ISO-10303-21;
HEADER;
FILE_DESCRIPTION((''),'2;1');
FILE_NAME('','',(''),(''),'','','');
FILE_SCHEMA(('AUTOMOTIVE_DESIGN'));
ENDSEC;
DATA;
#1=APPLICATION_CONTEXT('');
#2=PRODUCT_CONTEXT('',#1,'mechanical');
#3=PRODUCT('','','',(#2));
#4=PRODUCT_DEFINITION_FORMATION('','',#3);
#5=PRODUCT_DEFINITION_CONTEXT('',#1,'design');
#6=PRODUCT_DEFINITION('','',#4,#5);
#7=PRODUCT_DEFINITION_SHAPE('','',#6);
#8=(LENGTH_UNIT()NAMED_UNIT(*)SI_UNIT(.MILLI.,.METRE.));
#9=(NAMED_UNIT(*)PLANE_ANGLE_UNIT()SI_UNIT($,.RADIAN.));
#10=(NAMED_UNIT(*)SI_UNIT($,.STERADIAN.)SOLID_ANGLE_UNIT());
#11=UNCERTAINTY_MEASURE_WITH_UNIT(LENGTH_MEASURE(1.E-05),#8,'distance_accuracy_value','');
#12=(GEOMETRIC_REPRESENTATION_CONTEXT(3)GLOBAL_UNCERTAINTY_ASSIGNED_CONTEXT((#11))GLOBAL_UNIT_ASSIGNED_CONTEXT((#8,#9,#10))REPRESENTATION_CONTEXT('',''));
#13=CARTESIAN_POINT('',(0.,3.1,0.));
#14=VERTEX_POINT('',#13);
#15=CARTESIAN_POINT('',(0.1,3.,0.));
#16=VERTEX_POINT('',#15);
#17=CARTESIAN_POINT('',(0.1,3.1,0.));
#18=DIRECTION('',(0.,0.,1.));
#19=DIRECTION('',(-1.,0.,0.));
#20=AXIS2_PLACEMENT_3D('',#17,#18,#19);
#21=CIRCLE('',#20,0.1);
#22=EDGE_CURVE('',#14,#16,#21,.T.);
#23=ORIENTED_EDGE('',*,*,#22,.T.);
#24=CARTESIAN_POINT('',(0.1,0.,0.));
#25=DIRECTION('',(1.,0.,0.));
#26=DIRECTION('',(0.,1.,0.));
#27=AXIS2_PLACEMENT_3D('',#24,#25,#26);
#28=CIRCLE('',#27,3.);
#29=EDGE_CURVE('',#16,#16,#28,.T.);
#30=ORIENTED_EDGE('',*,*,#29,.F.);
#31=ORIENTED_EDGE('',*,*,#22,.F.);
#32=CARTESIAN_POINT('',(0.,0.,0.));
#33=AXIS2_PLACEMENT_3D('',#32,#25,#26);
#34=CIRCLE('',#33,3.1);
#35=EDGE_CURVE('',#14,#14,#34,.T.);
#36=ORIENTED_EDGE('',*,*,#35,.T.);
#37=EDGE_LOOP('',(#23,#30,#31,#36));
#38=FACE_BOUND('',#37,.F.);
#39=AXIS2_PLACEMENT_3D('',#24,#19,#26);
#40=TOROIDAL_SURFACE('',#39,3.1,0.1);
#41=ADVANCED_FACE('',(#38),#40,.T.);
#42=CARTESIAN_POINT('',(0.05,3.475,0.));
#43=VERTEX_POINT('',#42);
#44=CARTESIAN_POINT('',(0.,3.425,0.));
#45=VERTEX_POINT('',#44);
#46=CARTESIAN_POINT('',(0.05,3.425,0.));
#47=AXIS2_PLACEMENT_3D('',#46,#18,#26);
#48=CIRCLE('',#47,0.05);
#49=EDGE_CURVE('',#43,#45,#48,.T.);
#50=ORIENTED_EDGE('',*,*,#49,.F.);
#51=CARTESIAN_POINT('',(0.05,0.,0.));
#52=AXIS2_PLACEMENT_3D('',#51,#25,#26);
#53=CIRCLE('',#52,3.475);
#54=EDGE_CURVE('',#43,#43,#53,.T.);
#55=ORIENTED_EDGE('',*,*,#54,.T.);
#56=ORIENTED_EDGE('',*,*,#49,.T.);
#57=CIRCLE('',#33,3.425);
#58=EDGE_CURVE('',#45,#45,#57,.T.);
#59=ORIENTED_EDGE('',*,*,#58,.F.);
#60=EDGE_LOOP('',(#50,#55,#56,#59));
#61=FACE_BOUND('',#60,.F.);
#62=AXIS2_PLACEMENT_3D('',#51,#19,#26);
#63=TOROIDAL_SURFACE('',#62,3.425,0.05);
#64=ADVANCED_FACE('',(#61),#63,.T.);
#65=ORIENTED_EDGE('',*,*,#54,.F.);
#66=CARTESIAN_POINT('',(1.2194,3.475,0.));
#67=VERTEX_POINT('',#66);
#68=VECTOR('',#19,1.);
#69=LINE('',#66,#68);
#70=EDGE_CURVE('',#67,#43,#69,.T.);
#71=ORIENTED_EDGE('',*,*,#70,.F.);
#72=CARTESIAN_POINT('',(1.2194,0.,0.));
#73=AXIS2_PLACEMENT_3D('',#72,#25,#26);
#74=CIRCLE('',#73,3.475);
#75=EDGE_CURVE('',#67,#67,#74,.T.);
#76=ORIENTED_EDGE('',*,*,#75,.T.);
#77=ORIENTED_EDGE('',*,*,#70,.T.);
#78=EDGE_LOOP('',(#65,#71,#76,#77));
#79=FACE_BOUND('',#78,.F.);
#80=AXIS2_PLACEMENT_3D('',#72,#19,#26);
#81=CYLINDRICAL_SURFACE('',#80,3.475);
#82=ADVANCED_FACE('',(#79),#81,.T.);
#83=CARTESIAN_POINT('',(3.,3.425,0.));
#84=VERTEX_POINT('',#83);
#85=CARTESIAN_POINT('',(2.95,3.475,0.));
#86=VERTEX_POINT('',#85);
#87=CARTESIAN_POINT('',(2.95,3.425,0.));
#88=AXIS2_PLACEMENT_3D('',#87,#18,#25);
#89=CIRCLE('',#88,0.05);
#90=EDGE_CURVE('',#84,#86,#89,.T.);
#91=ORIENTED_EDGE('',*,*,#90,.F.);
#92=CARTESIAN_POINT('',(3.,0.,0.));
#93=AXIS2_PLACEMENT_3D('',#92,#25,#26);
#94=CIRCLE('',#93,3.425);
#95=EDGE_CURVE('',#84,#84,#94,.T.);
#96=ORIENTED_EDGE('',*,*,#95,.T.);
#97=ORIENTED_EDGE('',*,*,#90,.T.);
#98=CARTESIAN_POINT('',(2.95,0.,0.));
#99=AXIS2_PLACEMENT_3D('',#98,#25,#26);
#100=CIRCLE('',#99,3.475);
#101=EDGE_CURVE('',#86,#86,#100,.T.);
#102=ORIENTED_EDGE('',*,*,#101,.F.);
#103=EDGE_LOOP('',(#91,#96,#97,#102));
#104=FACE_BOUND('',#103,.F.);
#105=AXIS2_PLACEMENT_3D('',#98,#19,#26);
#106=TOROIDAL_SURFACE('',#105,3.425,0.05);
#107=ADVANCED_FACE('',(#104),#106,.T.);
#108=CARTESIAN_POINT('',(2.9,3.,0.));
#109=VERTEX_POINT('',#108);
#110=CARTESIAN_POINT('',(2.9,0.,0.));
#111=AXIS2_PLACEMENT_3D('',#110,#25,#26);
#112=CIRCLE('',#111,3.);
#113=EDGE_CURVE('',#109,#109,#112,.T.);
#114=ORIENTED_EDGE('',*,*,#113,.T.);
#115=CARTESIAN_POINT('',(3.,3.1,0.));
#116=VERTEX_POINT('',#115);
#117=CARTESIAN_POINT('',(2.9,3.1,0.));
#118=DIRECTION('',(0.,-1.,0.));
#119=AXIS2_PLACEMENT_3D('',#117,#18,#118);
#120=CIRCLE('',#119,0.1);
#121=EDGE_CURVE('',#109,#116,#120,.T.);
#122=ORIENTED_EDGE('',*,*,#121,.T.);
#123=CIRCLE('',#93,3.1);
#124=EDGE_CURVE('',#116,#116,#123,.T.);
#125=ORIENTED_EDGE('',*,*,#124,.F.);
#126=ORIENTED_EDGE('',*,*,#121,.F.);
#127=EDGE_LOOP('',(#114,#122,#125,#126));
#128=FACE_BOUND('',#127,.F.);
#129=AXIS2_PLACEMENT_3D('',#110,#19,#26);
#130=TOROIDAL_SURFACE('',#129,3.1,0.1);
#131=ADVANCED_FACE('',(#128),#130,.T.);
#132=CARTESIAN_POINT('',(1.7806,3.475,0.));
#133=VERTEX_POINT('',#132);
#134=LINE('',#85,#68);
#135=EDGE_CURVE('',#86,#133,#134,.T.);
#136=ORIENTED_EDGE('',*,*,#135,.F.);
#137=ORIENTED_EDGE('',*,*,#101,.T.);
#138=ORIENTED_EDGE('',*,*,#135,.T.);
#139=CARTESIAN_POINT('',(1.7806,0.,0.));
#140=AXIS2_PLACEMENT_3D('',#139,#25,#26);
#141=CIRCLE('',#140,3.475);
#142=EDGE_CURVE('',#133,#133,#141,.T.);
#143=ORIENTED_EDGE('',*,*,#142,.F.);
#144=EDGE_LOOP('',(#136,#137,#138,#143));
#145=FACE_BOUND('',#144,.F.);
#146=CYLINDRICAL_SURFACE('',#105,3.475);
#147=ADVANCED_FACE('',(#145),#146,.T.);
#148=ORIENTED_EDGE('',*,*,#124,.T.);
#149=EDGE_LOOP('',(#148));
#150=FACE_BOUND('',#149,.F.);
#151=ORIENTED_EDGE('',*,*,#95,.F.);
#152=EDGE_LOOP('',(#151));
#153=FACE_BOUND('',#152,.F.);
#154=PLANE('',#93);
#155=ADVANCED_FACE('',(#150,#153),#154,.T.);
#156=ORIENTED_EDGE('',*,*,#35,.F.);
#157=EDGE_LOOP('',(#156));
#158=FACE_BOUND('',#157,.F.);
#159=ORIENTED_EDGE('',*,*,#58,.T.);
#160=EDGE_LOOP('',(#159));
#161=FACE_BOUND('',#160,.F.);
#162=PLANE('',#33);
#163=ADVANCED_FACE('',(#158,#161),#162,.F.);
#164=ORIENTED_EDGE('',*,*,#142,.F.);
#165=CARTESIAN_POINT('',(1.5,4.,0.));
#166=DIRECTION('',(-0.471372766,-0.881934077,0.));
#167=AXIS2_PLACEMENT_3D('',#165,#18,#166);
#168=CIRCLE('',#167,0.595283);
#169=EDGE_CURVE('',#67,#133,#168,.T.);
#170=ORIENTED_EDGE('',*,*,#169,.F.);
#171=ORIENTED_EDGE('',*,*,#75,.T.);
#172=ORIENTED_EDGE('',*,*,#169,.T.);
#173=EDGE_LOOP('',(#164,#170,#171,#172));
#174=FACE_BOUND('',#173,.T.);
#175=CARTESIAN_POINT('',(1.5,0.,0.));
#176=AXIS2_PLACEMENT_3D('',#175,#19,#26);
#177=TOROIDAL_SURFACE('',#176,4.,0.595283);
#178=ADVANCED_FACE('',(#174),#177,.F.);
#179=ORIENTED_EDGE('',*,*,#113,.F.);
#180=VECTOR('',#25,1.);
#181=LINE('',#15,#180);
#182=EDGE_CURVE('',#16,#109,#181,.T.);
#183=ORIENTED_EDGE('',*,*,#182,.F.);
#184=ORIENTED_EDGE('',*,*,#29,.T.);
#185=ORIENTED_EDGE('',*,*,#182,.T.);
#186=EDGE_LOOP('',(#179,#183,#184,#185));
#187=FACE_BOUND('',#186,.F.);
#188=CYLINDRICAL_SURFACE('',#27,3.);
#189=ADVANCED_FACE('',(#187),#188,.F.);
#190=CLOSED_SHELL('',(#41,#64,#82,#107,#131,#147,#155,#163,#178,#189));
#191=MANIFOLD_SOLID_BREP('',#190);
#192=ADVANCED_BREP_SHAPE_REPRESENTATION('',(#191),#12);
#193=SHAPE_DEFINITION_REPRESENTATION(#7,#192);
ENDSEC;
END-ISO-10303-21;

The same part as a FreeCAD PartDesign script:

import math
import FreeCAD as App
import Part
import Sketcher
from FreeCAD import Vector

doc = App.newDocument("Part")
body = doc.addObject("PartDesign::Body", "Body")

sketch1 = body.newObject("Sketcher::SketchObject", "Sketch")
sketch1.AttachmentSupport = (doc.getObject("XY_Plane"), [""])
sketch1.MapMode = "FlatFace"
sketch1.addGeometry([
    Part.ArcOfCircle(Part.Circle(Vector(0.05, 3.425, 0), Vector(0, 0, 1), 0.05), math.radians(90), math.radians(180)),
    Part.LineSegment(Vector(0, 3.425, 0), Vector(0, 3.1, 0)),
    Part.ArcOfCircle(Part.Circle(Vector(0.1, 3.1, 0), Vector(0, 0, 1), 0.1), math.radians(180), math.radians(270)),
    Part.LineSegment(Vector(0.1, 3, 0), Vector(2.9, 3, 0)),
    Part.ArcOfCircle(Part.Circle(Vector(2.9, 3.1, 0), Vector(0, 0, 1), 0.1), math.radians(-90), math.radians(0)),
    Part.LineSegment(Vector(3, 3.1, 0), Vector(3, 3.425, 0)),
    Part.ArcOfCircle(Part.Circle(Vector(2.95, 3.425, 0), Vector(0, 0, 1), 0.05), math.radians(0), math.radians(90)),
    Part.LineSegment(Vector(2.95, 3.475, 0), Vector(1.781, 3.475, 0)),
    Part.ArcOfCircle(Part.Circle(Vector(1.5, 4, 0), Vector(0, 0, 1), 0.595), math.radians(-118), math.radians(-62)),
    Part.LineSegment(Vector(1.219, 3.475, 0), Vector(0.05, 3.475, 0)),
], False)
sketch1.addConstraint([
    Sketcher.Constraint("Tangent", 0, 2, 1, 1),
    Sketcher.Constraint("Tangent", 1, 2, 2, 1),
    Sketcher.Constraint("Tangent", 2, 2, 3, 1),
    Sketcher.Constraint("Tangent", 3, 2, 4, 1),
    Sketcher.Constraint("Tangent", 4, 2, 5, 1),
    Sketcher.Constraint("Tangent", 5, 2, 6, 1),
    Sketcher.Constraint("Tangent", 6, 2, 7, 1),
    Sketcher.Constraint("Coincident", 7, 2, 8, 2),
    Sketcher.Constraint("Coincident", 8, 1, 9, 1),
    Sketcher.Constraint("Tangent", 9, 2, 0, 1),
    Sketcher.Constraint("Vertical", 1),
    Sketcher.Constraint("Horizontal", 3),
    Sketcher.Constraint("Vertical", 5),
    Sketcher.Constraint("Horizontal", 7),
    Sketcher.Constraint("Horizontal", 9),
    Sketcher.Constraint("Equal", 2, 4),
    Sketcher.Constraint("Equal", 0, 6),
    Sketcher.Constraint("PointOnObject", 0, 2, -2),
    Sketcher.Constraint("Horizontal", 0, 3, 6, 3),
    Sketcher.Constraint("Equal", 7, 9),
    Sketcher.Constraint("Radius", 2, 0.1),
    Sketcher.Constraint("Radius", 0, 0.05),
    Sketcher.Constraint("DistanceX", 3, 1, 3, 2, 2.8),
    Sketcher.Constraint("DistanceY", -1, 1, 8, 3, 4.0),
    Sketcher.Constraint("DistanceY", -1, 1, 2, 2, 3.0),
    Sketcher.Constraint("Radius", 8, 0.5953),
    Sketcher.Constraint("DistanceY", 1, 2, 1, 1, 0.325),
])
revolution = body.newObject("PartDesign::Revolution", "Revolution")
revolution.Profile = sketch1
revolution.ReferenceAxis = (sketch1, ["H_Axis"])
revolution.Angle = 360

doc.recompute()
